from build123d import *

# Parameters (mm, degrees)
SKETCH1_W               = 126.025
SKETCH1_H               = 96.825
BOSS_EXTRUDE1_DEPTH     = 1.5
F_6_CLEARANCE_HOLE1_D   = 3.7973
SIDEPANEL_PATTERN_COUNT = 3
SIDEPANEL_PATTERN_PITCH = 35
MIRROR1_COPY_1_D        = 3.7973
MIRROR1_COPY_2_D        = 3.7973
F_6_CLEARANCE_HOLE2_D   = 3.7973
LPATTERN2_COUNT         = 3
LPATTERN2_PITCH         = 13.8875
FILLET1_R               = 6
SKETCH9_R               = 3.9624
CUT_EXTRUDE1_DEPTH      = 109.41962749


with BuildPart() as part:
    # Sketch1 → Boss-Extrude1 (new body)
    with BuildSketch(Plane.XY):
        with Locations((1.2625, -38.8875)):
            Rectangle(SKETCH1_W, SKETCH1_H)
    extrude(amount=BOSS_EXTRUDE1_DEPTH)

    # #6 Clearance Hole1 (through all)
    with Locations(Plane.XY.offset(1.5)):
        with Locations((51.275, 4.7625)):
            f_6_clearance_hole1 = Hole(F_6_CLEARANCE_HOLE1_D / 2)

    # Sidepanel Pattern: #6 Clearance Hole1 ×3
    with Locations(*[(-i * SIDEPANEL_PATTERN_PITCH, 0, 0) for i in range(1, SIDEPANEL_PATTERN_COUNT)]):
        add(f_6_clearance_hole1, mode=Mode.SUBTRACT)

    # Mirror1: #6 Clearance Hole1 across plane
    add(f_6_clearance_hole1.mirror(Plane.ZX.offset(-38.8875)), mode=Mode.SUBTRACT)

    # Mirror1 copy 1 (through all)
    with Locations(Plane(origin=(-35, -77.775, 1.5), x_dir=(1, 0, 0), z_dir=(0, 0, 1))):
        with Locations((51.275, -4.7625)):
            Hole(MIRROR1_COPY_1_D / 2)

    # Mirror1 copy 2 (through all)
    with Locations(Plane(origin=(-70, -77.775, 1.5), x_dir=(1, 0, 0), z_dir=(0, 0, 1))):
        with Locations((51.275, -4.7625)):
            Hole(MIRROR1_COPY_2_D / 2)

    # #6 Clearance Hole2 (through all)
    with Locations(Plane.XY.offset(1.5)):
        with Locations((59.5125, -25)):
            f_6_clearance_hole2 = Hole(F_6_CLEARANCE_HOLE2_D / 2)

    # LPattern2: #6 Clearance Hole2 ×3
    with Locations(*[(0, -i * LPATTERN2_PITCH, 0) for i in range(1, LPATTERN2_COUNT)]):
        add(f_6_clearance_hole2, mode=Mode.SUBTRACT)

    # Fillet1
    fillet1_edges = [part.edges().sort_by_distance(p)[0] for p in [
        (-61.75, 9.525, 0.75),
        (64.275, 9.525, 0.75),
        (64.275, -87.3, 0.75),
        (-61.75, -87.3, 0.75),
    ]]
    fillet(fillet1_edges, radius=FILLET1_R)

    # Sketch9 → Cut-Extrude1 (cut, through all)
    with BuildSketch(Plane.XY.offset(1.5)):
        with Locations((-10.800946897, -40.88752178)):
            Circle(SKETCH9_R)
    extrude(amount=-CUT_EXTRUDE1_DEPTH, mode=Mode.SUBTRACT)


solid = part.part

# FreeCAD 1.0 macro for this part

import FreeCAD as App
import Part
import Sketcher
from FreeCAD import Vector


def edges_at(feature, points):
    """Names of the edges that pass closest to the given points."""
    edges = feature.Shape.Edges
    near = lambda p: min(range(len(edges)), key=lambda i: edges[i].distToShape(Part.Vertex(*p))[0])
    return sorted({f"Edge{near(p) + 1}" for p in points})

doc = App.newDocument("Part")
body = doc.addObject("PartDesign::Body", "Body")

# Sketch on XY plane
sketch1 = body.newObject("Sketcher::SketchObject", "Sketch")
sketch1.AttachmentSupport = (doc.getObject("XY_Plane"), [""])
sketch1.MapMode = "FlatFace"
sketch1.addGeometry(Part.LineSegment(Vector(-62, 10, 0), Vector(-62, -87, 0)), False)
sketch1.addGeometry(Part.LineSegment(Vector(-62, -87, 0), Vector(64, -87, 0)), False)
sketch1.addGeometry(Part.LineSegment(Vector(64, -87, 0), Vector(64, 10, 0)), False)
sketch1.addGeometry(Part.LineSegment(Vector(64, 10, 0), Vector(-62, 10, 0)), False)
sketch1.addConstraint(Sketcher.Constraint("Coincident", 0, 2, 1, 1))
sketch1.addConstraint(Sketcher.Constraint("Coincident", 1, 2, 2, 1))
sketch1.addConstraint(Sketcher.Constraint("Coincident", 2, 2, 3, 1))
sketch1.addConstraint(Sketcher.Constraint("Coincident", 3, 2, 0, 1))
sketch1.addConstraint(Sketcher.Constraint("Vertical", 0))
sketch1.addConstraint(Sketcher.Constraint("Horizontal", 1))
sketch1.addConstraint(Sketcher.Constraint("Vertical", 2))
sketch1.addConstraint(Sketcher.Constraint("Horizontal", 3))
sketch1.addConstraint(Sketcher.Constraint("DistanceY", 0, 2, -1, 1, 87.3))
sketch1.addConstraint(Sketcher.Constraint("DistanceX", 1, 1, 1, 2, 126.025))
sketch1.addConstraint(Sketcher.Constraint("DistanceY", 0, 2, 0, 1, 96.825))
sketch1.addConstraint(Sketcher.Constraint("DistanceX", 0, 2, -1, 1, 61.75))
pad1 = body.newObject("PartDesign::Pad", "Pad")
pad1.Profile = sketch1
pad1.Length = 1.5

# Sketch on XY plane
sketch2 = body.newObject("Sketcher::SketchObject", "Sketch001")
sketch2.AttachmentSupport = (doc.getObject("XY_Plane"), [""])
sketch2.MapMode = "FlatFace"
sketch2.AttachmentOffset = App.Placement(Vector(0, 0, 1.5), App.Rotation())
sketch2.addGeometry(Part.Circle(Vector(51.3, 4.8, 0), Vector(0, 0, 1), 1.9), False)
sketch2.addConstraint(Sketcher.Constraint("Diameter", 0, 3.7973))
sketch2.addConstraint(Sketcher.Constraint("DistanceX", -1, 1, 0, 3, 51.275))
sketch2.addConstraint(Sketcher.Constraint("DistanceY", -1, 1, 0, 3, 4.7625))
doc.recompute()
hole = body.newObject("PartDesign::Hole", "Hole")
hole.Profile = sketch2
hole.ThreadType = "None"
hole.Diameter = 3.7973
hole.DepthType = "ThroughAll"
doc.recompute()

linearpattern = body.newObject("PartDesign::LinearPattern", "LinearPattern")
linearpattern.Originals = [hole]
linearpattern.Direction = (doc.getObject("X_Axis"), [""])
linearpattern.Mode = "offset"
linearpattern.Offset = 35
linearpattern.Occurrences = 3
linearpattern.Reversed = True
body.Tip = linearpattern
doc.recompute()

datumplane = body.newObject("PartDesign::Plane", "DatumPlane")
datumplane.AttachmentSupport = (doc.getObject("XZ_Plane"), [""])
datumplane.MapMode = "FlatFace"
datumplane.AttachmentOffset = App.Placement(Vector(0, 0, 38.8875), App.Rotation())
mirrored = body.newObject("PartDesign::Mirrored", "Mirrored")
mirrored.Originals = [hole]
mirrored.MirrorPlane = (datumplane, [""])
body.Tip = mirrored

# Sketch on XY plane
sketch3 = body.newObject("Sketcher::SketchObject", "Sketch002")
sketch3.AttachmentSupport = (doc.getObject("XY_Plane"), [""])
sketch3.MapMode = "FlatFace"
sketch3.AttachmentOffset = App.Placement(Vector(0, 0, 1.5), App.Rotation())
sketch3.addGeometry(Part.Circle(Vector(16.3, -82.5, 0), Vector(0, 0, 1), 1.9), False)
sketch3.addConstraint(Sketcher.Constraint("Diameter", 0, 3.7973))
sketch3.addConstraint(Sketcher.Constraint("DistanceX", -1, 1, 0, 3, 16.275))
sketch3.addConstraint(Sketcher.Constraint("DistanceY", 0, 3, -1, 1, 82.5375))
doc.recompute()
hole2 = body.newObject("PartDesign::Hole", "Hole001")
hole2.Profile = sketch3
hole2.ThreadType = "None"
hole2.Diameter = 3.7973
hole2.DepthType = "ThroughAll"

# Sketch on XY plane
sketch4 = body.newObject("Sketcher::SketchObject", "Sketch003")
sketch4.AttachmentSupport = (doc.getObject("XY_Plane"), [""])
sketch4.MapMode = "FlatFace"
sketch4.AttachmentOffset = App.Placement(Vector(0, 0, 1.5), App.Rotation())
sketch4.addGeometry(Part.Circle(Vector(-18.7, -82.5, 0), Vector(0, 0, 1), 1.9), False)
sketch4.addConstraint(Sketcher.Constraint("Diameter", 0, 3.7973))
sketch4.addConstraint(Sketcher.Constraint("DistanceX", 0, 3, -1, 1, 18.725))
sketch4.addConstraint(Sketcher.Constraint("DistanceY", 0, 3, -1, 1, 82.5375))
doc.recompute()
hole3 = body.newObject("PartDesign::Hole", "Hole002")
hole3.Profile = sketch4
hole3.ThreadType = "None"
hole3.Diameter = 3.7973
hole3.DepthType = "ThroughAll"

# Sketch on XY plane
sketch5 = body.newObject("Sketcher::SketchObject", "Sketch004")
sketch5.AttachmentSupport = (doc.getObject("XY_Plane"), [""])
sketch5.MapMode = "FlatFace"
sketch5.AttachmentOffset = App.Placement(Vector(0, 0, 1.5), App.Rotation())
sketch5.addGeometry(Part.Circle(Vector(59.5, -25, 0), Vector(0, 0, 1), 1.9), False)
sketch5.addConstraint(Sketcher.Constraint("DistanceY", 0, 3, -1, 1, 25.0))
sketch5.addConstraint(Sketcher.Constraint("Diameter", 0, 3.7973))
sketch5.addConstraint(Sketcher.Constraint("DistanceX", -1, 1, 0, 3, 59.5125))
doc.recompute()
hole4 = body.newObject("PartDesign::Hole", "Hole003")
hole4.Profile = sketch5
hole4.ThreadType = "None"
hole4.Diameter = 3.7973
hole4.DepthType = "ThroughAll"
doc.recompute()

linearpattern2 = body.newObject("PartDesign::LinearPattern", "LinearPattern001")
linearpattern2.Originals = [hole4]
linearpattern2.Direction = (doc.getObject("Y_Axis"), [""])
linearpattern2.Mode = "offset"
linearpattern2.Offset = 13.8875
linearpattern2.Occurrences = 3
linearpattern2.Reversed = True
body.Tip = linearpattern2
doc.recompute()

fillet = body.newObject("PartDesign::Fillet", "Fillet")
fillet.Base = (linearpattern2, edges_at(linearpattern2, [
    (-61.75, 9.525, 0.75),
    (64.275, 9.525, 0.75),
    (64.275, -87.3, 0.75),
    (-61.75, -87.3, 0.75),
]))
fillet.Radius = 6

# Sketch on XY plane
sketch6 = body.newObject("Sketcher::SketchObject", "Sketch005")
sketch6.AttachmentSupport = (doc.getObject("XY_Plane"), [""])
sketch6.MapMode = "FlatFace"
sketch6.AttachmentOffset = App.Placement(Vector(0, 0, 1.5), App.Rotation())
sketch6.addGeometry(Part.Circle(Vector(-10.8, -40.9, 0), Vector(0, 0, 1), 4), False)
sketch6.addConstraint(Sketcher.Constraint("Diameter", 0, 7.9248))
sketch6.addConstraint(Sketcher.Constraint("DistanceY", 0, 3, -1, 1, 40.887522))
sketch6.addConstraint(Sketcher.Constraint("DistanceX", 0, 3, -1, 1, 10.800947))
pocket1 = body.newObject("PartDesign::Pocket", "Pocket")
pocket1.Profile = sketch6
pocket1.Type = "ThroughAll"

doc.recompute()
